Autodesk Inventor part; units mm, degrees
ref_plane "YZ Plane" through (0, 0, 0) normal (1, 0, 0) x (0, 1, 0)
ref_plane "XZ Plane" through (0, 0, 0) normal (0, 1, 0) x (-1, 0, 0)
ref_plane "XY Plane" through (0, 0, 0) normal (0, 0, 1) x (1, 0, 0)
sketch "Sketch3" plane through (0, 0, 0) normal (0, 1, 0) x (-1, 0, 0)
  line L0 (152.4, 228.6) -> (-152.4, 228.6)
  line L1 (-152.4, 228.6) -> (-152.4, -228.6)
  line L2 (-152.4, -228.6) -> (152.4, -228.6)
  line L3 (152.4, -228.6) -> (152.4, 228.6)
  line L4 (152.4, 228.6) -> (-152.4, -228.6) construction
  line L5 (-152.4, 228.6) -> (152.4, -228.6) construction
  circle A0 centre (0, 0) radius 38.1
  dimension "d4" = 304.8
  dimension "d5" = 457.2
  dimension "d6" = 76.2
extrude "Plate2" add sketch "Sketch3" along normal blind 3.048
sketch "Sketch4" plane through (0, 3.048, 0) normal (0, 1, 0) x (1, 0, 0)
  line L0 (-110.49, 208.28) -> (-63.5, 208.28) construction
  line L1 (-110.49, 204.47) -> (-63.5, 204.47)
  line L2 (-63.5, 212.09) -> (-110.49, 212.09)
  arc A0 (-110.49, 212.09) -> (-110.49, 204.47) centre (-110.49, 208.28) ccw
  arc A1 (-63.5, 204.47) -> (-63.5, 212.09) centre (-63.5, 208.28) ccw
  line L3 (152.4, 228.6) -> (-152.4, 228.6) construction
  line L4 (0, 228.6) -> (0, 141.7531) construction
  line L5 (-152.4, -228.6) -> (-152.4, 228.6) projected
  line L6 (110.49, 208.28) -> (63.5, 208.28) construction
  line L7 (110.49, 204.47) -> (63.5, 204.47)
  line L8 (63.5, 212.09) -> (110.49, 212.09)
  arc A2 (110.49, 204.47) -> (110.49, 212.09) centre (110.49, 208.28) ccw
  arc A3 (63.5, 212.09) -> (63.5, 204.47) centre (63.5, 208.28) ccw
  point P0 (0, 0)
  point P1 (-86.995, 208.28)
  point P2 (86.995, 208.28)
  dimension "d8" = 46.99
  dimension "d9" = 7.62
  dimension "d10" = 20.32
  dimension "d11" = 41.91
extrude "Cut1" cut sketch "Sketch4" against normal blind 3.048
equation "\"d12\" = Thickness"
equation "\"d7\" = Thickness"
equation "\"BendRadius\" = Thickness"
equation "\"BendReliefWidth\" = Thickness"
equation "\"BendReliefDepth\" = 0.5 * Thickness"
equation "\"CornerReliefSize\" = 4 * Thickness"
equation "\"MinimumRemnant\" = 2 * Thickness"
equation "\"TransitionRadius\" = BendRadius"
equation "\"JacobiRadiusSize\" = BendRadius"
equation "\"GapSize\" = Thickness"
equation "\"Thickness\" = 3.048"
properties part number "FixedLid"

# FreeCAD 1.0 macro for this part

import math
import FreeCAD as App
import Part
import Sketcher

V = App.Vector
Q = App.Units.Quantity

doc = App.newDocument("Part")
body = doc.addObject("PartDesign::Body", "Body")

# Sketch on XZ plane
sketch1 = body.newObject("Sketcher::SketchObject", "Sketch")
sketch1.AttachmentSupport = (doc.getObject("XZ_Plane"), [""])
sketch1.MapMode = "FlatFace"
sketch1.addGeometry([
    Part.LineSegment(V(-152.4, -228.6, 0), V(-152.4, 228.6, 0)),  # 0
    Part.LineSegment(V(-152.4, 228.6, 0), V(152.4, 228.6, 0)),  # 1
    Part.LineSegment(V(152.4, 228.6, 0), V(152.4, -228.6, 0)),  # 2
    Part.LineSegment(V(152.4, -228.6, 0), V(-152.4, -228.6, 0)),  # 3
    Part.Circle(V(0, 0, 0), V(0, 0, 1), 38.1),  # 4
], False)
sketch1.addConstraint([
    Sketcher.Constraint("Coincident", 0, 2, 1, 1),
    Sketcher.Constraint("Coincident", 1, 2, 2, 1),
    Sketcher.Constraint("Coincident", 2, 2, 3, 1),
    Sketcher.Constraint("Coincident", 3, 2, 0, 1),
    Sketcher.Constraint("Vertical", 0),
    Sketcher.Constraint("Horizontal", 1),
    Sketcher.Constraint("Vertical", 2),
    Sketcher.Constraint("Horizontal", 3),
    Sketcher.Constraint("Coincident", 4, 3, -1, 1),
    Sketcher.Constraint("Symmetric", 0, 2, 2, 2, -1, 1),
    Sketcher.Constraint("Diameter", 4, Q("3 in")),
    Sketcher.Constraint("DistanceX", 1, 1, 1, 2, Q("12 in")),
    Sketcher.Constraint("DistanceY", 0, 1, 0, 2, Q("18 in")),
])
pad1 = body.newObject("PartDesign::Pad", "Pad")
pad1.Profile = sketch1
pad1.Length = Q("0.12 in")
pad1.Reversed = True

# Sketch on XZ plane
sketch2 = body.newObject("Sketcher::SketchObject", "Sketch001")
sketch2.AttachmentSupport = (doc.getObject("XZ_Plane"), [""])
sketch2.MapMode = "FlatFace"
sketch2.AttachmentOffset = App.Placement(V(0, 0, -0.12 * 25.4), App.Rotation())
sketch2.addGeometry([
    Part.ArcOfCircle(Part.Circle(V(-110.49, -208.28, 0), V(0, 0, 1), 3.81), math.radians(90), math.radians(270)),  # 0
    Part.LineSegment(V(-110.49, -204.47, 0), V(-63.5, -204.47, 0)),  # 1
    Part.ArcOfCircle(Part.Circle(V(-63.5, -208.28, 0), V(0, 0, 1), 3.81), math.radians(-90), math.radians(90)),  # 2
    Part.LineSegment(V(-63.5, -212.09, 0), V(-110.49, -212.09, 0)),  # 3
    Part.LineSegment(V(63.5, -204.47, 0), V(110.49, -204.47, 0)),  # 4
    Part.ArcOfCircle(Part.Circle(V(110.49, -208.28, 0), V(0, 0, 1), 3.81), math.radians(-90), math.radians(90)),  # 5
    Part.LineSegment(V(110.49, -212.09, 0), V(63.5, -212.09, 0)),  # 6
    Part.ArcOfCircle(Part.Circle(V(63.5, -208.28, 0), V(0, 0, 1), 3.81), math.radians(90), math.radians(270)),  # 7
], False)
sketch2.addConstraint([
    Sketcher.Constraint("Tangent", 0, 1, 1, 1),
    Sketcher.Constraint("Tangent", 1, 2, 2, 2),
    Sketcher.Constraint("Tangent", 2, 1, 3, 1),
    Sketcher.Constraint("Tangent", 3, 2, 0, 2),
    Sketcher.Constraint("Tangent", 4, 2, 5, 2),
    Sketcher.Constraint("Tangent", 5, 1, 6, 1),
    Sketcher.Constraint("Tangent", 6, 2, 7, 2),
    Sketcher.Constraint("Tangent", 7, 1, 4, 1),
    Sketcher.Constraint("Horizontal", 1),
    Sketcher.Constraint("Horizontal", 3),
    Sketcher.Constraint("Horizontal", 4),
    Sketcher.Constraint("Horizontal", 6),
    Sketcher.Constraint("Equal", 2, 5),
    Sketcher.Constraint("Symmetric", 0, 3, 5, 3, -2),
    Sketcher.Constraint("Equal", 3, 4),
    Sketcher.Constraint("Radius", 0, Q("0.15 in")),
    Sketcher.Constraint("DistanceX", 1, 1, 1, 2, Q("1.85 in")),
    Sketcher.Constraint("DistanceX", 2, 3, 7, 3, Q("5 in")),
    Sketcher.Constraint("DistanceY", 0, 3, -1, 1, Q("8.2 in")),
])
pocket1 = body.newObject("PartDesign::Pocket", "Pocket")
pocket1.Profile = sketch2
pocket1.Length = Q("0.12 in")
pocket1.Reversed = True

doc.recompute()
